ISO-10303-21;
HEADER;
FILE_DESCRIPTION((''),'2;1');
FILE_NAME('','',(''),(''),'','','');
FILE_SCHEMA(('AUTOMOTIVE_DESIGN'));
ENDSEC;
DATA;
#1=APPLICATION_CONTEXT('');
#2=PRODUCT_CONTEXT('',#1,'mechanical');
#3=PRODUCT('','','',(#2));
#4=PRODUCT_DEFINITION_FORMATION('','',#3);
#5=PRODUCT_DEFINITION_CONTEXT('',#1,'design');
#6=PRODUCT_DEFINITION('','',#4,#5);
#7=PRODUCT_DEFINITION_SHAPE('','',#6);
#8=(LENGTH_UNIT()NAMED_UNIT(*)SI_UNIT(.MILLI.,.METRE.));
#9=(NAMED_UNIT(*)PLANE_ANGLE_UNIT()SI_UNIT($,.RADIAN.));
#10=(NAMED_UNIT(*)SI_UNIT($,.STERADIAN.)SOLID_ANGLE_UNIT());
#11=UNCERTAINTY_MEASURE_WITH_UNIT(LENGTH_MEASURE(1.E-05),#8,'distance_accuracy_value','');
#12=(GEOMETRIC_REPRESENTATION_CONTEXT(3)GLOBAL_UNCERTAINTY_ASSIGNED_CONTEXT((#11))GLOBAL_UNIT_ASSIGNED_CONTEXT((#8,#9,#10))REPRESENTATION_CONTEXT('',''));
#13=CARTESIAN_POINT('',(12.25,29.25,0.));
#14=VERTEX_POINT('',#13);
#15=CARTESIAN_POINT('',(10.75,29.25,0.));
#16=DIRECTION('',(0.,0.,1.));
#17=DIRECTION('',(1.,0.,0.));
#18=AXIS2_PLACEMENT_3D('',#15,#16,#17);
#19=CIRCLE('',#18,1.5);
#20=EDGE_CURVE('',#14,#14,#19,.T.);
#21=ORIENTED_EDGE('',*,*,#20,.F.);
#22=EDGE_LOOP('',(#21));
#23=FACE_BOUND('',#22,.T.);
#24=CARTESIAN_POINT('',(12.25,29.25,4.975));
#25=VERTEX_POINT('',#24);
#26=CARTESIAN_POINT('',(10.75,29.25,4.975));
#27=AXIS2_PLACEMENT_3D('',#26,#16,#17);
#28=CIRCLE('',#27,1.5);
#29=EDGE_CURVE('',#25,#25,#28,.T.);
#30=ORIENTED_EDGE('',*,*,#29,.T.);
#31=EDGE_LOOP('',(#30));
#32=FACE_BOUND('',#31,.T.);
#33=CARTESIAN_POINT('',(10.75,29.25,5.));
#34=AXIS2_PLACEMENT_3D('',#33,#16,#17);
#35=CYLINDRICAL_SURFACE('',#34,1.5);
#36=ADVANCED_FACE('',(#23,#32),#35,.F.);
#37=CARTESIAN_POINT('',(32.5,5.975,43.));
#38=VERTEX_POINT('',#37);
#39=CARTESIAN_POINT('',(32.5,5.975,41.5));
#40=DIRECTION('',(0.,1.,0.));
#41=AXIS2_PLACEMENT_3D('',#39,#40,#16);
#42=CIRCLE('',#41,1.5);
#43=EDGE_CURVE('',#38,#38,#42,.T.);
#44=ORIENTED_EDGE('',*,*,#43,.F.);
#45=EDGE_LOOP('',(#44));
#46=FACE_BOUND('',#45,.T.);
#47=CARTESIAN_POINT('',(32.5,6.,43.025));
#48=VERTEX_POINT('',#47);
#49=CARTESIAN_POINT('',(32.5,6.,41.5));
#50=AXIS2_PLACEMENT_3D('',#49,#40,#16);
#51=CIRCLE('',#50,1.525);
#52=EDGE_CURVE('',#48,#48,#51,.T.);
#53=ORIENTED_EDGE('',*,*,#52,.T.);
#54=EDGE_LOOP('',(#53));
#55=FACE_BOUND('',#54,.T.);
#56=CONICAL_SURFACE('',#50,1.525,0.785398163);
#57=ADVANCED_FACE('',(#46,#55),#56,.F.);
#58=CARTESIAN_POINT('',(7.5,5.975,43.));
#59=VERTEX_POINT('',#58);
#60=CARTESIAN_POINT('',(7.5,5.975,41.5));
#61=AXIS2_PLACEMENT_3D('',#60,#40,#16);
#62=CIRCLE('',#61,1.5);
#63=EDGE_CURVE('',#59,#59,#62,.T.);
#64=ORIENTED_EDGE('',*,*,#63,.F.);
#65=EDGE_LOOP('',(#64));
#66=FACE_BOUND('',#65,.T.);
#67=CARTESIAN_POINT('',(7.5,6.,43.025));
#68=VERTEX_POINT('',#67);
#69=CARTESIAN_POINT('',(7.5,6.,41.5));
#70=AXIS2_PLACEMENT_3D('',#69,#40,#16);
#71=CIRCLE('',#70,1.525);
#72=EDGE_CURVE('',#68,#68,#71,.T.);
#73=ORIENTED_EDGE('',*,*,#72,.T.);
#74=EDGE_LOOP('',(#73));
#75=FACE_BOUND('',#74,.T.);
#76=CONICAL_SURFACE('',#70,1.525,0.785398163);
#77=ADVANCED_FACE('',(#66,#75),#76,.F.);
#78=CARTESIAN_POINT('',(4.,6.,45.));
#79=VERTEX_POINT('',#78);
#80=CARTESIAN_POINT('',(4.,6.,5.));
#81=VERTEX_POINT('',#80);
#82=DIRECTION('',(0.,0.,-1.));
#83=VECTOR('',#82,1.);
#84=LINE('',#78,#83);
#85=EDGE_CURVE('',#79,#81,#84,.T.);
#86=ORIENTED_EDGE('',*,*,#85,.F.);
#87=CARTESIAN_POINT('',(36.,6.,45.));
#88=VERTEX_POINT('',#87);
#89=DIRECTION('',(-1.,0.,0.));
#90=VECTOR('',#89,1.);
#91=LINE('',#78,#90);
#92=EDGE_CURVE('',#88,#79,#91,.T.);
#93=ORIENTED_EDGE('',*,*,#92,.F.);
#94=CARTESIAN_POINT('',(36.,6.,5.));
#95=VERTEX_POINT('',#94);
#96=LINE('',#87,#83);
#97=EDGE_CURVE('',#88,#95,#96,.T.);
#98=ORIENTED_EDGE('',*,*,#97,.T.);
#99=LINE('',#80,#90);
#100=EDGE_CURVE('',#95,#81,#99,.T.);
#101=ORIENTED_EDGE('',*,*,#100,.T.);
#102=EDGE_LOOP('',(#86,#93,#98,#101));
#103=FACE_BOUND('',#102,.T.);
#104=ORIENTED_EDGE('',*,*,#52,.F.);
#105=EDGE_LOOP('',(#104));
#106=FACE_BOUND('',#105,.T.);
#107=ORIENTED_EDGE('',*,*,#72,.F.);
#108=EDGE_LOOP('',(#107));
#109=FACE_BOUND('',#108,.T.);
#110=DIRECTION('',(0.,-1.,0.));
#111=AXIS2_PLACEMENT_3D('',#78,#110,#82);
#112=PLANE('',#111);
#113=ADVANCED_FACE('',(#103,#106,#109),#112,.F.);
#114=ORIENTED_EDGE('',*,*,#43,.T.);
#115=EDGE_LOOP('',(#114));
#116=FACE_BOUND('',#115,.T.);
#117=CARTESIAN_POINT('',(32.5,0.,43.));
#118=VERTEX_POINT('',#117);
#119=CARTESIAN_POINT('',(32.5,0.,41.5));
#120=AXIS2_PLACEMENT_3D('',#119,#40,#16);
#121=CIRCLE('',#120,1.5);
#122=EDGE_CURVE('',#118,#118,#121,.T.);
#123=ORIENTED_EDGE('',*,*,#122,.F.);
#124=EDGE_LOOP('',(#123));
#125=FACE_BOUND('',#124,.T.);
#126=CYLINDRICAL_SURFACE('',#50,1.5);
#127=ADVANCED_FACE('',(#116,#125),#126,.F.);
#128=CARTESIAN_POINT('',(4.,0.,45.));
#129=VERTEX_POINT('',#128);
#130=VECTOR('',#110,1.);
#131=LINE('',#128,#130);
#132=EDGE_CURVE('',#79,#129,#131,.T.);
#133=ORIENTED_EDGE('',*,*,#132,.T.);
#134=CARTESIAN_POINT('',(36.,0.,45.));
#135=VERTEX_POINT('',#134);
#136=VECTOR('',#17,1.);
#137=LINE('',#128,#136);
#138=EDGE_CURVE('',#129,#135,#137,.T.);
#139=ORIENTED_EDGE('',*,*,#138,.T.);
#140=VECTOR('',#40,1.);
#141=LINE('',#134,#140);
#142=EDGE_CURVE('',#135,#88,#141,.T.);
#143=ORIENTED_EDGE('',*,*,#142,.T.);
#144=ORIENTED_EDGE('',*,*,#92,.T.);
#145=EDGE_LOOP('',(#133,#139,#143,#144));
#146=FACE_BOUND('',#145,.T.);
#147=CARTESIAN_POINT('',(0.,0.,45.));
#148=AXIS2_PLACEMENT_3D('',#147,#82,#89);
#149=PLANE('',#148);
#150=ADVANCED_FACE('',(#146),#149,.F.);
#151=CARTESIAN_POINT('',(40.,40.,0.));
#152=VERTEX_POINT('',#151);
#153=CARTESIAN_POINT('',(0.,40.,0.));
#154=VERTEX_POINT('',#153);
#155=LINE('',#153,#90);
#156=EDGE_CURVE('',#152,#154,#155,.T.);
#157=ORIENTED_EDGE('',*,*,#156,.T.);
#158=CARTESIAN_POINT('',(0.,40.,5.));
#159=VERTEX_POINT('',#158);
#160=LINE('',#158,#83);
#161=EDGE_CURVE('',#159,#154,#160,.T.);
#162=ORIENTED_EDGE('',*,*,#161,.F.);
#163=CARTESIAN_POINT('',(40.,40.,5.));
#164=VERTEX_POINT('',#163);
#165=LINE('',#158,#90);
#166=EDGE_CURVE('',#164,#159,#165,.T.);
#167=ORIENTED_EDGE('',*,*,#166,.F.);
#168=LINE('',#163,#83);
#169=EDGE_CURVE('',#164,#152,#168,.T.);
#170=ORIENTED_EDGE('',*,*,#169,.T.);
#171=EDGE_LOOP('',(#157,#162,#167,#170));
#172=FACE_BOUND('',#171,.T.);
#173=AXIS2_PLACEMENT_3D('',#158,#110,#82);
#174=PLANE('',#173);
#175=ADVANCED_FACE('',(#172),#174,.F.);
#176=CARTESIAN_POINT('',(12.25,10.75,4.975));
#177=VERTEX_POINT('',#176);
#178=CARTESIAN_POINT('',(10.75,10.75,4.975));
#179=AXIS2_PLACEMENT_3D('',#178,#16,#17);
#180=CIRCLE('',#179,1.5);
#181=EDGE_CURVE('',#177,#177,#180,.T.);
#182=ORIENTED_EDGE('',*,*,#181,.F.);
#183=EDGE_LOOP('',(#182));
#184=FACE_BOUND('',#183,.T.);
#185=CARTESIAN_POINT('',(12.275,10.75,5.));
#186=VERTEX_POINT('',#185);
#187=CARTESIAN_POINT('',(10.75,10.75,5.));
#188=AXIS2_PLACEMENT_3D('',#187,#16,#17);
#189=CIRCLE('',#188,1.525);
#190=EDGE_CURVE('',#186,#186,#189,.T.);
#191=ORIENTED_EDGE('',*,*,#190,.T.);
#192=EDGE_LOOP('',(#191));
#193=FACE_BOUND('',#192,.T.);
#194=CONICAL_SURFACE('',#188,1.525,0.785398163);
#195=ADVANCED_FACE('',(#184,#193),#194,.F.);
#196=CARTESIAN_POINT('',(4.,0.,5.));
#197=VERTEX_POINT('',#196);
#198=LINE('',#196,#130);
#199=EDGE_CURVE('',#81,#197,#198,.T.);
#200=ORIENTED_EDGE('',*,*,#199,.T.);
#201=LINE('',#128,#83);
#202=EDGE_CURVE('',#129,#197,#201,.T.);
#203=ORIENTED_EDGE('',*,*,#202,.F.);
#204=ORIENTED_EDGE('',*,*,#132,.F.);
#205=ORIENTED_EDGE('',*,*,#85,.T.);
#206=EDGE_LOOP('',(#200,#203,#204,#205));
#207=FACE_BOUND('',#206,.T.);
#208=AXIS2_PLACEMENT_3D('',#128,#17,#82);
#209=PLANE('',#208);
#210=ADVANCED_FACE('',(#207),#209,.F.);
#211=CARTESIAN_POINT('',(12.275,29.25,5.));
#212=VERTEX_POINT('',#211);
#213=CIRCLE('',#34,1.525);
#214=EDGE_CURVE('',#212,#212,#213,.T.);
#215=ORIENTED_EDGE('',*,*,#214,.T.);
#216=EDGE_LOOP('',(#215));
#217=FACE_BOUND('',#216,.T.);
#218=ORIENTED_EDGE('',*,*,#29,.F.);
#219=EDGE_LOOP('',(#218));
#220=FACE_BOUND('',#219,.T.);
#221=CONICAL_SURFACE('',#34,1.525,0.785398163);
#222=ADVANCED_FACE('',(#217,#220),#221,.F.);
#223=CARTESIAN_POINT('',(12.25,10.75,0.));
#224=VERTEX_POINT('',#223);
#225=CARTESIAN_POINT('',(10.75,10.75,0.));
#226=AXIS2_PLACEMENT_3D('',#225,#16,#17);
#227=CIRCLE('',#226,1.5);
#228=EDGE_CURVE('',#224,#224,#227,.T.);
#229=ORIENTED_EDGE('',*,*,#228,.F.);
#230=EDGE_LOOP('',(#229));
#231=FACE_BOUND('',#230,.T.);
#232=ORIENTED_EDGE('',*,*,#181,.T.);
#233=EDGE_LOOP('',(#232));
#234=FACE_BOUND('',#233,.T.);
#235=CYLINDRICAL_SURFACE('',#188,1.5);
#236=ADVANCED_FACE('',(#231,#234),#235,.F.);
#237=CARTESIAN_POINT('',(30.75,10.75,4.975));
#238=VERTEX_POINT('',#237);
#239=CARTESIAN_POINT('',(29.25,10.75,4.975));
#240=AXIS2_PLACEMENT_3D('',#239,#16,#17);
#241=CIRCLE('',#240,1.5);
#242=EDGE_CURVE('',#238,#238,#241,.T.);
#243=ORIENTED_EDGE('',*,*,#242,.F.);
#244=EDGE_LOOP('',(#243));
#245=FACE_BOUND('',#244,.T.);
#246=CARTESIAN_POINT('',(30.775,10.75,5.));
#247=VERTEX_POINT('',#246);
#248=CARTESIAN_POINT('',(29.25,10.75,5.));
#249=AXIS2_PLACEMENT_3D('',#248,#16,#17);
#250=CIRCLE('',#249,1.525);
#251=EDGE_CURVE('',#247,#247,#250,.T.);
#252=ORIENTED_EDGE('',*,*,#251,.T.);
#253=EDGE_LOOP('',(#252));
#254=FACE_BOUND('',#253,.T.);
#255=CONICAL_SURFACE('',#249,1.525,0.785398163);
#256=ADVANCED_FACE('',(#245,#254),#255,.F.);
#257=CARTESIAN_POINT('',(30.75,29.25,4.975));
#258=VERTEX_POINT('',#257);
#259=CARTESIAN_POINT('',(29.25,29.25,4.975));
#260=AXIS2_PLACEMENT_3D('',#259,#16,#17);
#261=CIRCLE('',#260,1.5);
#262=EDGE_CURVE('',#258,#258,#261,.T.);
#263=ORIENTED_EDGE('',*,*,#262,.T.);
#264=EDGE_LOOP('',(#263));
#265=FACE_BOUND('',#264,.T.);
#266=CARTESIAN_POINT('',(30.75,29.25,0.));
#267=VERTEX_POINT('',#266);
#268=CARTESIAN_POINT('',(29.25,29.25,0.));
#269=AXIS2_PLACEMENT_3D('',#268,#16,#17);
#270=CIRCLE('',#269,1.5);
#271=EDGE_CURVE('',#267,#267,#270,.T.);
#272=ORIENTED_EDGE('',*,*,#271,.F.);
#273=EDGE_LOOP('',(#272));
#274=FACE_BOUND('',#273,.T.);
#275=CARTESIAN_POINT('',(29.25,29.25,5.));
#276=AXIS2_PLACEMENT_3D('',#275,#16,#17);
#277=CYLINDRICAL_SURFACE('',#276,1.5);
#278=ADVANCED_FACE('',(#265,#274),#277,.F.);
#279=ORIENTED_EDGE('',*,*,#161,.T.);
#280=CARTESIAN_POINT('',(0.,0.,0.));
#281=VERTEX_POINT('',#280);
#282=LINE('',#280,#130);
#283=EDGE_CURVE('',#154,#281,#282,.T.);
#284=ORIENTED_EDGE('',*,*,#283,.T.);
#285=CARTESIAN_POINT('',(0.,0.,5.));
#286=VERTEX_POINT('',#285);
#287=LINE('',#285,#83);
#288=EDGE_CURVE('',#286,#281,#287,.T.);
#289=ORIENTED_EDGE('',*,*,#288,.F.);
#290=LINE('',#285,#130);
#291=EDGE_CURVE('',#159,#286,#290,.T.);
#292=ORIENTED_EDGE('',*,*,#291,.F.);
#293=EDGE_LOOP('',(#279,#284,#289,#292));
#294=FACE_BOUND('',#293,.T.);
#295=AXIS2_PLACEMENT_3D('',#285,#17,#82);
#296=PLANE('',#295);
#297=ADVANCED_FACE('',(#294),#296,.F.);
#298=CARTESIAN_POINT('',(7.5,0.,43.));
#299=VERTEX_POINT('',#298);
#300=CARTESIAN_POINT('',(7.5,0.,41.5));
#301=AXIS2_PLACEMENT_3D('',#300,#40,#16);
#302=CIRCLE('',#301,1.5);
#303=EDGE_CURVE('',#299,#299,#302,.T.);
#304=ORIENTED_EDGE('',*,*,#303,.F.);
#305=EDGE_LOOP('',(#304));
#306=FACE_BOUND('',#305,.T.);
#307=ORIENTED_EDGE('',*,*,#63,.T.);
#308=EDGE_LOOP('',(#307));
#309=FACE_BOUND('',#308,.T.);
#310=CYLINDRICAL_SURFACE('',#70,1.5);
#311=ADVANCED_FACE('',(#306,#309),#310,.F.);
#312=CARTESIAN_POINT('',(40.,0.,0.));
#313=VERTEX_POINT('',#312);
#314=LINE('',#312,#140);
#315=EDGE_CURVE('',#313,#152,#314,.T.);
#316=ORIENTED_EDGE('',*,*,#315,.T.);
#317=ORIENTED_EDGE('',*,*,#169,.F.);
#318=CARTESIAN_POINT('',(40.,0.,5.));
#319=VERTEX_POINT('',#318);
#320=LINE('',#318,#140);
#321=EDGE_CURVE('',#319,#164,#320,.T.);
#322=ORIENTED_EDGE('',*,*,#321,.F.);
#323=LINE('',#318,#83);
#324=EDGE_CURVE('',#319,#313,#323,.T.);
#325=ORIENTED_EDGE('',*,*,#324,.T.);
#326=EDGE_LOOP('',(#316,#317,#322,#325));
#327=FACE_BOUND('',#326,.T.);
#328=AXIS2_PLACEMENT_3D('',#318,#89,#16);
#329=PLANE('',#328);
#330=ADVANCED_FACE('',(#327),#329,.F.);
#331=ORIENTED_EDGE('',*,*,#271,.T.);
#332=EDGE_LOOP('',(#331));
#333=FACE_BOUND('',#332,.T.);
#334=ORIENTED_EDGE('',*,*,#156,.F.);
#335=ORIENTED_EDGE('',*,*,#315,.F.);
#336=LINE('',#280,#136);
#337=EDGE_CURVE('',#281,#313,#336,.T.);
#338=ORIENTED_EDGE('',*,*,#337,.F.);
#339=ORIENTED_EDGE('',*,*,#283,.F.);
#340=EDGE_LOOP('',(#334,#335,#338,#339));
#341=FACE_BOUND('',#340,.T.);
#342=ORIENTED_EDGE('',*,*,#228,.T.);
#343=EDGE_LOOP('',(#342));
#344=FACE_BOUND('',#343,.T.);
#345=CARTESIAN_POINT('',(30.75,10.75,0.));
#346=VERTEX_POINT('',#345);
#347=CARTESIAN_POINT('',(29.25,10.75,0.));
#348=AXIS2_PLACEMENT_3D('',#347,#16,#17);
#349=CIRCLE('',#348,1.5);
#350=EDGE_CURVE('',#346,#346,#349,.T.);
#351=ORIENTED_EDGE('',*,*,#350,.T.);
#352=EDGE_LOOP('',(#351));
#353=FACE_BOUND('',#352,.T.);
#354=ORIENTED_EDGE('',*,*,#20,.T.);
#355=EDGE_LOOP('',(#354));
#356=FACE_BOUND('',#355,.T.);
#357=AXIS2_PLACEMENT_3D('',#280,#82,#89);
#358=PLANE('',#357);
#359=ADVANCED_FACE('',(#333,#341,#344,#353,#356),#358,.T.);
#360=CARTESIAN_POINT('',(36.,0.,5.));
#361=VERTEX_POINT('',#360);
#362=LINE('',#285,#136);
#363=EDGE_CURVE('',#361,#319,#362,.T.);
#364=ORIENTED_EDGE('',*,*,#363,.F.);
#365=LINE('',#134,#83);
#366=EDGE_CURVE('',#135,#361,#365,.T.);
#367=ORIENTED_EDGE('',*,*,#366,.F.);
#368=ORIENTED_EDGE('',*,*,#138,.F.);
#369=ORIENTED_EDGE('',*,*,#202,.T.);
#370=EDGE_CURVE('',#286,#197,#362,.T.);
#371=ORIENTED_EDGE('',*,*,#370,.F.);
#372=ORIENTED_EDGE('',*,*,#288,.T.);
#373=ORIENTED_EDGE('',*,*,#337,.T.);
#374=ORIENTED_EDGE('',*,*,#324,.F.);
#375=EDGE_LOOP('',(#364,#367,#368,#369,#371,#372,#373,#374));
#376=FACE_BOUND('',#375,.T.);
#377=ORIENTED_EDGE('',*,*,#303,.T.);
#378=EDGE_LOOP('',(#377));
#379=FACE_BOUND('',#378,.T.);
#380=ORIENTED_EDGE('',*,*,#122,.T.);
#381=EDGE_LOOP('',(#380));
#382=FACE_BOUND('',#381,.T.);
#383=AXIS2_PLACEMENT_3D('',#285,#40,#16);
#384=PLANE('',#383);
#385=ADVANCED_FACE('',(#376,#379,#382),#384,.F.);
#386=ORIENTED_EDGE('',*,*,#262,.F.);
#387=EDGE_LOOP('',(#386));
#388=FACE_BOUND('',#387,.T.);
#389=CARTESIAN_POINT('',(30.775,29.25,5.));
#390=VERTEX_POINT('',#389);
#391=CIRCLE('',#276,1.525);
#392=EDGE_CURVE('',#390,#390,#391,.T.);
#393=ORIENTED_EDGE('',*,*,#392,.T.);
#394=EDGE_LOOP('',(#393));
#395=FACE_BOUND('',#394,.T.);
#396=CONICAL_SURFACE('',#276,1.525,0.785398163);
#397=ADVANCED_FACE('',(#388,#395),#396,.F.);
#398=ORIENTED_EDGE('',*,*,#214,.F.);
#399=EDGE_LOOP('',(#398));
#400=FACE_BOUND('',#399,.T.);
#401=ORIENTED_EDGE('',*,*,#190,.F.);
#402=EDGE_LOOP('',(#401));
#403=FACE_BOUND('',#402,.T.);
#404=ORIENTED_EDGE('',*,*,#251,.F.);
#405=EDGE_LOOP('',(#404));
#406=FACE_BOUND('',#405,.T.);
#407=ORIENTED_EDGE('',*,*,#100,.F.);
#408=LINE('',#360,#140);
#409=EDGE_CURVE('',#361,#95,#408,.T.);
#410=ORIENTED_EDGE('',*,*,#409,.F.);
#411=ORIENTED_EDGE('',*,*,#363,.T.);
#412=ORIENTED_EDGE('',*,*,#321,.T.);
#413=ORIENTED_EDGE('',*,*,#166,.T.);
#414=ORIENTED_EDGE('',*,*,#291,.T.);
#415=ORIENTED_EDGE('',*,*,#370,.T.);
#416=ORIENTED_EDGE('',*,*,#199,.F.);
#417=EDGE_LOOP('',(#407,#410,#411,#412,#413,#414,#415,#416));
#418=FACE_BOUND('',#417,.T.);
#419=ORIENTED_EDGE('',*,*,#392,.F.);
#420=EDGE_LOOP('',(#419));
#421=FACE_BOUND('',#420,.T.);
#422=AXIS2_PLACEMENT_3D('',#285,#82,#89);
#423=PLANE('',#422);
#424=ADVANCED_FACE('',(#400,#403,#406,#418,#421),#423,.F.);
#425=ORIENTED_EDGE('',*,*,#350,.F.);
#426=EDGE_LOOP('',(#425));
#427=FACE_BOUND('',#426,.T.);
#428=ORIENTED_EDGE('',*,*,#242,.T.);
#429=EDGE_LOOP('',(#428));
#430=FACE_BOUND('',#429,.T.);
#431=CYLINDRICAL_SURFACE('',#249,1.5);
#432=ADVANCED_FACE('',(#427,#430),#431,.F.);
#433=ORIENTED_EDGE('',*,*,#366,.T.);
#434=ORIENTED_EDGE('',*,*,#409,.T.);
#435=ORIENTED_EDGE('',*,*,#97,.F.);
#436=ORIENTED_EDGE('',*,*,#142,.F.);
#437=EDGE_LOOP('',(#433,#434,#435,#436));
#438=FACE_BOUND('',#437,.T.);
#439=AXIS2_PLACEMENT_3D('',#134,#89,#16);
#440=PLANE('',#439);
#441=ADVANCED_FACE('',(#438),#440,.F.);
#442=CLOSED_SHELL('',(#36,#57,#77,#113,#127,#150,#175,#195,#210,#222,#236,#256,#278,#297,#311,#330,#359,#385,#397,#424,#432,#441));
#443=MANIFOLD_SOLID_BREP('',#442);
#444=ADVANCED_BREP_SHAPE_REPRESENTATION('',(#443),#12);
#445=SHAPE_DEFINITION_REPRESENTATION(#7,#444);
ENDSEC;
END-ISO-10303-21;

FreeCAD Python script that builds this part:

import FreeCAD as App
import Part
import Sketcher
Q = App.Units.Quantity

doc = App.newDocument("Part")
params = doc.addObject("Spreadsheet::Sheet", "Params")
for row, (alias, value) in enumerate([
    ("sketch1_width", "40 mm"),
    ("pad1_length", "5 mm"),
    ("sketch2_diameter", "3 mm"),
    ("hole_diameter", "3 mm"),
    ("hole_csink_diameter", "3.05 mm"),
    ("sketch3_width", "32 mm"),
    ("sketch3_height", "6 mm"),
    ("pad2_length", "40 mm"),
    ("sketch4_diameter", "3 mm"),
    ("hole2_diameter", "3 mm"),
    ("hole2_csink_diameter", "3.05 mm"),
], start=1):
    params.set(f"A{row}", alias)
    params.set(f"B{row}", "=" + value)
    params.setAlias(f"B{row}", alias)

body = doc.addObject("PartDesign::Body", "Body")

# Sketch on XY plane
sketch1 = body.newObject("Sketcher::SketchObject", "Sketch")
sketch1.AttachmentSupport = (doc.getObject("XY_Plane"), [""])
sketch1.MapMode = "FlatFace"
sketch1.addGeometry([
    Part.LineSegment(App.Vector(0, 40, 0), App.Vector(0, 0, 0)),
    Part.LineSegment(App.Vector(0, 0, 0), App.Vector(40, 0, 0)),
    Part.LineSegment(App.Vector(40, 0, 0), App.Vector(40, 40, 0)),
    Part.LineSegment(App.Vector(40, 40, 0), App.Vector(0, 40, 0)),
], False)
sketch1.addConstraint([
    Sketcher.Constraint("Coincident", 0, 2, 1, 1),
    Sketcher.Constraint("Coincident", 1, 2, 2, 1),
    Sketcher.Constraint("Coincident", 2, 2, 3, 1),
    Sketcher.Constraint("Coincident", 3, 2, 0, 1),
    Sketcher.Constraint("Vertical", 0),
    Sketcher.Constraint("Horizontal", 1),
    Sketcher.Constraint("Vertical", 2),
    Sketcher.Constraint("Horizontal", 3),
    Sketcher.Constraint("Coincident", 0, 2, -1, 1),
    Sketcher.Constraint("Equal", 3, 0),
    Sketcher.Constraint("DistanceX", 1, 1, 1, 2, Q("40 mm")),
])
sketch1.setExpression("Constraints[10]", "Params.sketch1_width")
pad1 = body.newObject("PartDesign::Pad", "Pad")
pad1.Profile = sketch1
pad1.setExpression("Length", "Params.pad1_length")

# Sketch on XY plane
sketch2 = body.newObject("Sketcher::SketchObject", "Sketch001")
sketch2.AttachmentSupport = (doc.getObject("XY_Plane"), [""])
sketch2.MapMode = "FlatFace"
sketch2.AttachmentOffset = App.Placement(App.Vector(0, 0, 5), App.Rotation())
sketch2.addGeometry([
    Part.Circle(App.Vector(10.75, 29.25, 0), App.Vector(0, 0, 1), 1.5),
    Part.Circle(App.Vector(29.25, 29.25, 0), App.Vector(0, 0, 1), 1.5),
    Part.Circle(App.Vector(10.75, 10.75, 0), App.Vector(0, 0, 1), 1.5),
    Part.Circle(App.Vector(29.25, 10.75, 0), App.Vector(0, 0, 1), 1.5),
], False)
sketch2.addConstraint([
    Sketcher.Constraint("Equal", 0, 1),
    Sketcher.Constraint("Equal", 1, 2),
    Sketcher.Constraint("Equal", 2, 3),
    Sketcher.Constraint("Horizontal", 0, 3, 1, 3),
    Sketcher.Constraint("Horizontal", 2, 3, 3, 3),
    Sketcher.Constraint("Vertical", 0, 3, 2, 3),
    Sketcher.Constraint("Vertical", 1, 3, 3, 3),
    Sketcher.Constraint("Diameter", 0, Q("3 mm")),
    Sketcher.Constraint("DistanceX", 0, 3, 1, 3, Q("18.5 mm")),
    Sketcher.Constraint("DistanceY", 2, 3, 0, 3, Q("18.5 mm")),
    Sketcher.Constraint("DistanceX", -1, 1, 0, 3, Q("10.75 mm")),
    Sketcher.Constraint("DistanceY", -1, 1, 0, 3, Q("29.25 mm")),
])
sketch2.setExpression("Constraints[7]", "Params.sketch2_diameter")
doc.recompute()
hole = body.newObject("PartDesign::Hole", "Hole")
hole.Profile = sketch2
hole.ThreadType = "None"
hole.setExpression("Diameter", "Params.hole_diameter")
hole.DepthType = "ThroughAll"
hole.HoleCutType = "Countersink"
hole.setExpression("HoleCutDiameter", "Params.hole_csink_diameter")
hole.HoleCutCountersinkAngle = 90

# Sketch on XY plane
sketch3 = body.newObject("Sketcher::SketchObject", "Sketch002")
sketch3.AttachmentSupport = (doc.getObject("XY_Plane"), [""])
sketch3.MapMode = "FlatFace"
sketch3.AttachmentOffset = App.Placement(App.Vector(0, 0, 5), App.Rotation())
sketch3.addGeometry([
    Part.LineSegment(App.Vector(4, 6, 0), App.Vector(4, 0, 0)),
    Part.LineSegment(App.Vector(4, 0, 0), App.Vector(36, 0, 0)),
    Part.LineSegment(App.Vector(36, 0, 0), App.Vector(36, 6, 0)),
    Part.LineSegment(App.Vector(36, 6, 0), App.Vector(4, 6, 0)),
], False)
sketch3.addConstraint([
    Sketcher.Constraint("Coincident", 0, 2, 1, 1),
    Sketcher.Constraint("Coincident", 1, 2, 2, 1),
    Sketcher.Constraint("Coincident", 2, 2, 3, 1),
    Sketcher.Constraint("Coincident", 3, 2, 0, 1),
    Sketcher.Constraint("Vertical", 0),
    Sketcher.Constraint("Horizontal", 1),
    Sketcher.Constraint("Vertical", 2),
    Sketcher.Constraint("Horizontal", 3),
    Sketcher.Constraint("PointOnObject", 0, 2, -1),
    Sketcher.Constraint("DistanceX", 1, 1, 1, 2, Q("32 mm")),
    Sketcher.Constraint("DistanceY", 0, 2, 0, 1, Q("6 mm")),
    Sketcher.Constraint("DistanceX", -1, 1, 0, 2, Q("4 mm")),
])
sketch3.setExpression("Constraints[9]", "Params.sketch3_width")
sketch3.setExpression("Constraints[10]", "Params.sketch3_height")
pad2 = body.newObject("PartDesign::Pad", "Pad001")
pad2.Profile = sketch3
pad2.setExpression("Length", "Params.pad2_length")

# Sketch on XZ plane
sketch4 = body.newObject("Sketcher::SketchObject", "Sketch003")
sketch4.AttachmentSupport = (doc.getObject("XZ_Plane"), [""])
sketch4.MapMode = "FlatFace"
sketch4.AttachmentOffset = App.Placement(App.Vector(0, 0, -6), App.Rotation())
sketch4.addGeometry([
    Part.Circle(App.Vector(7.5, 41.5, 0), App.Vector(0, 0, 1), 1.5),
    Part.Circle(App.Vector(32.5, 41.5, 0), App.Vector(0, 0, 1), 1.5),
], False)
sketch4.addConstraint([
    Sketcher.Constraint("Equal", 0, 1),
    Sketcher.Constraint("Horizontal", 0, 3, 1, 3),
    Sketcher.Constraint("Diameter", 0, Q("3 mm")),
    Sketcher.Constraint("DistanceX", 0, 3, 1, 3, Q("25 mm")),
    Sketcher.Constraint("DistanceX", -1, 1, 0, 3, Q("7.5 mm")),
    Sketcher.Constraint("DistanceY", -1, 1, 0, 3, Q("41.5 mm")),
])
sketch4.setExpression("Constraints[2]", "Params.sketch4_diameter")
doc.recompute()
hole2 = body.newObject("PartDesign::Hole", "Hole001")
hole2.Profile = sketch4
hole2.ThreadType = "None"
hole2.setExpression("Diameter", "Params.hole2_diameter")
hole2.DepthType = "ThroughAll"
hole2.HoleCutType = "Countersink"
hole2.setExpression("HoleCutDiameter", "Params.hole2_csink_diameter")
hole2.HoleCutCountersinkAngle = 90
hole2.Reversed = True

doc.recompute()
